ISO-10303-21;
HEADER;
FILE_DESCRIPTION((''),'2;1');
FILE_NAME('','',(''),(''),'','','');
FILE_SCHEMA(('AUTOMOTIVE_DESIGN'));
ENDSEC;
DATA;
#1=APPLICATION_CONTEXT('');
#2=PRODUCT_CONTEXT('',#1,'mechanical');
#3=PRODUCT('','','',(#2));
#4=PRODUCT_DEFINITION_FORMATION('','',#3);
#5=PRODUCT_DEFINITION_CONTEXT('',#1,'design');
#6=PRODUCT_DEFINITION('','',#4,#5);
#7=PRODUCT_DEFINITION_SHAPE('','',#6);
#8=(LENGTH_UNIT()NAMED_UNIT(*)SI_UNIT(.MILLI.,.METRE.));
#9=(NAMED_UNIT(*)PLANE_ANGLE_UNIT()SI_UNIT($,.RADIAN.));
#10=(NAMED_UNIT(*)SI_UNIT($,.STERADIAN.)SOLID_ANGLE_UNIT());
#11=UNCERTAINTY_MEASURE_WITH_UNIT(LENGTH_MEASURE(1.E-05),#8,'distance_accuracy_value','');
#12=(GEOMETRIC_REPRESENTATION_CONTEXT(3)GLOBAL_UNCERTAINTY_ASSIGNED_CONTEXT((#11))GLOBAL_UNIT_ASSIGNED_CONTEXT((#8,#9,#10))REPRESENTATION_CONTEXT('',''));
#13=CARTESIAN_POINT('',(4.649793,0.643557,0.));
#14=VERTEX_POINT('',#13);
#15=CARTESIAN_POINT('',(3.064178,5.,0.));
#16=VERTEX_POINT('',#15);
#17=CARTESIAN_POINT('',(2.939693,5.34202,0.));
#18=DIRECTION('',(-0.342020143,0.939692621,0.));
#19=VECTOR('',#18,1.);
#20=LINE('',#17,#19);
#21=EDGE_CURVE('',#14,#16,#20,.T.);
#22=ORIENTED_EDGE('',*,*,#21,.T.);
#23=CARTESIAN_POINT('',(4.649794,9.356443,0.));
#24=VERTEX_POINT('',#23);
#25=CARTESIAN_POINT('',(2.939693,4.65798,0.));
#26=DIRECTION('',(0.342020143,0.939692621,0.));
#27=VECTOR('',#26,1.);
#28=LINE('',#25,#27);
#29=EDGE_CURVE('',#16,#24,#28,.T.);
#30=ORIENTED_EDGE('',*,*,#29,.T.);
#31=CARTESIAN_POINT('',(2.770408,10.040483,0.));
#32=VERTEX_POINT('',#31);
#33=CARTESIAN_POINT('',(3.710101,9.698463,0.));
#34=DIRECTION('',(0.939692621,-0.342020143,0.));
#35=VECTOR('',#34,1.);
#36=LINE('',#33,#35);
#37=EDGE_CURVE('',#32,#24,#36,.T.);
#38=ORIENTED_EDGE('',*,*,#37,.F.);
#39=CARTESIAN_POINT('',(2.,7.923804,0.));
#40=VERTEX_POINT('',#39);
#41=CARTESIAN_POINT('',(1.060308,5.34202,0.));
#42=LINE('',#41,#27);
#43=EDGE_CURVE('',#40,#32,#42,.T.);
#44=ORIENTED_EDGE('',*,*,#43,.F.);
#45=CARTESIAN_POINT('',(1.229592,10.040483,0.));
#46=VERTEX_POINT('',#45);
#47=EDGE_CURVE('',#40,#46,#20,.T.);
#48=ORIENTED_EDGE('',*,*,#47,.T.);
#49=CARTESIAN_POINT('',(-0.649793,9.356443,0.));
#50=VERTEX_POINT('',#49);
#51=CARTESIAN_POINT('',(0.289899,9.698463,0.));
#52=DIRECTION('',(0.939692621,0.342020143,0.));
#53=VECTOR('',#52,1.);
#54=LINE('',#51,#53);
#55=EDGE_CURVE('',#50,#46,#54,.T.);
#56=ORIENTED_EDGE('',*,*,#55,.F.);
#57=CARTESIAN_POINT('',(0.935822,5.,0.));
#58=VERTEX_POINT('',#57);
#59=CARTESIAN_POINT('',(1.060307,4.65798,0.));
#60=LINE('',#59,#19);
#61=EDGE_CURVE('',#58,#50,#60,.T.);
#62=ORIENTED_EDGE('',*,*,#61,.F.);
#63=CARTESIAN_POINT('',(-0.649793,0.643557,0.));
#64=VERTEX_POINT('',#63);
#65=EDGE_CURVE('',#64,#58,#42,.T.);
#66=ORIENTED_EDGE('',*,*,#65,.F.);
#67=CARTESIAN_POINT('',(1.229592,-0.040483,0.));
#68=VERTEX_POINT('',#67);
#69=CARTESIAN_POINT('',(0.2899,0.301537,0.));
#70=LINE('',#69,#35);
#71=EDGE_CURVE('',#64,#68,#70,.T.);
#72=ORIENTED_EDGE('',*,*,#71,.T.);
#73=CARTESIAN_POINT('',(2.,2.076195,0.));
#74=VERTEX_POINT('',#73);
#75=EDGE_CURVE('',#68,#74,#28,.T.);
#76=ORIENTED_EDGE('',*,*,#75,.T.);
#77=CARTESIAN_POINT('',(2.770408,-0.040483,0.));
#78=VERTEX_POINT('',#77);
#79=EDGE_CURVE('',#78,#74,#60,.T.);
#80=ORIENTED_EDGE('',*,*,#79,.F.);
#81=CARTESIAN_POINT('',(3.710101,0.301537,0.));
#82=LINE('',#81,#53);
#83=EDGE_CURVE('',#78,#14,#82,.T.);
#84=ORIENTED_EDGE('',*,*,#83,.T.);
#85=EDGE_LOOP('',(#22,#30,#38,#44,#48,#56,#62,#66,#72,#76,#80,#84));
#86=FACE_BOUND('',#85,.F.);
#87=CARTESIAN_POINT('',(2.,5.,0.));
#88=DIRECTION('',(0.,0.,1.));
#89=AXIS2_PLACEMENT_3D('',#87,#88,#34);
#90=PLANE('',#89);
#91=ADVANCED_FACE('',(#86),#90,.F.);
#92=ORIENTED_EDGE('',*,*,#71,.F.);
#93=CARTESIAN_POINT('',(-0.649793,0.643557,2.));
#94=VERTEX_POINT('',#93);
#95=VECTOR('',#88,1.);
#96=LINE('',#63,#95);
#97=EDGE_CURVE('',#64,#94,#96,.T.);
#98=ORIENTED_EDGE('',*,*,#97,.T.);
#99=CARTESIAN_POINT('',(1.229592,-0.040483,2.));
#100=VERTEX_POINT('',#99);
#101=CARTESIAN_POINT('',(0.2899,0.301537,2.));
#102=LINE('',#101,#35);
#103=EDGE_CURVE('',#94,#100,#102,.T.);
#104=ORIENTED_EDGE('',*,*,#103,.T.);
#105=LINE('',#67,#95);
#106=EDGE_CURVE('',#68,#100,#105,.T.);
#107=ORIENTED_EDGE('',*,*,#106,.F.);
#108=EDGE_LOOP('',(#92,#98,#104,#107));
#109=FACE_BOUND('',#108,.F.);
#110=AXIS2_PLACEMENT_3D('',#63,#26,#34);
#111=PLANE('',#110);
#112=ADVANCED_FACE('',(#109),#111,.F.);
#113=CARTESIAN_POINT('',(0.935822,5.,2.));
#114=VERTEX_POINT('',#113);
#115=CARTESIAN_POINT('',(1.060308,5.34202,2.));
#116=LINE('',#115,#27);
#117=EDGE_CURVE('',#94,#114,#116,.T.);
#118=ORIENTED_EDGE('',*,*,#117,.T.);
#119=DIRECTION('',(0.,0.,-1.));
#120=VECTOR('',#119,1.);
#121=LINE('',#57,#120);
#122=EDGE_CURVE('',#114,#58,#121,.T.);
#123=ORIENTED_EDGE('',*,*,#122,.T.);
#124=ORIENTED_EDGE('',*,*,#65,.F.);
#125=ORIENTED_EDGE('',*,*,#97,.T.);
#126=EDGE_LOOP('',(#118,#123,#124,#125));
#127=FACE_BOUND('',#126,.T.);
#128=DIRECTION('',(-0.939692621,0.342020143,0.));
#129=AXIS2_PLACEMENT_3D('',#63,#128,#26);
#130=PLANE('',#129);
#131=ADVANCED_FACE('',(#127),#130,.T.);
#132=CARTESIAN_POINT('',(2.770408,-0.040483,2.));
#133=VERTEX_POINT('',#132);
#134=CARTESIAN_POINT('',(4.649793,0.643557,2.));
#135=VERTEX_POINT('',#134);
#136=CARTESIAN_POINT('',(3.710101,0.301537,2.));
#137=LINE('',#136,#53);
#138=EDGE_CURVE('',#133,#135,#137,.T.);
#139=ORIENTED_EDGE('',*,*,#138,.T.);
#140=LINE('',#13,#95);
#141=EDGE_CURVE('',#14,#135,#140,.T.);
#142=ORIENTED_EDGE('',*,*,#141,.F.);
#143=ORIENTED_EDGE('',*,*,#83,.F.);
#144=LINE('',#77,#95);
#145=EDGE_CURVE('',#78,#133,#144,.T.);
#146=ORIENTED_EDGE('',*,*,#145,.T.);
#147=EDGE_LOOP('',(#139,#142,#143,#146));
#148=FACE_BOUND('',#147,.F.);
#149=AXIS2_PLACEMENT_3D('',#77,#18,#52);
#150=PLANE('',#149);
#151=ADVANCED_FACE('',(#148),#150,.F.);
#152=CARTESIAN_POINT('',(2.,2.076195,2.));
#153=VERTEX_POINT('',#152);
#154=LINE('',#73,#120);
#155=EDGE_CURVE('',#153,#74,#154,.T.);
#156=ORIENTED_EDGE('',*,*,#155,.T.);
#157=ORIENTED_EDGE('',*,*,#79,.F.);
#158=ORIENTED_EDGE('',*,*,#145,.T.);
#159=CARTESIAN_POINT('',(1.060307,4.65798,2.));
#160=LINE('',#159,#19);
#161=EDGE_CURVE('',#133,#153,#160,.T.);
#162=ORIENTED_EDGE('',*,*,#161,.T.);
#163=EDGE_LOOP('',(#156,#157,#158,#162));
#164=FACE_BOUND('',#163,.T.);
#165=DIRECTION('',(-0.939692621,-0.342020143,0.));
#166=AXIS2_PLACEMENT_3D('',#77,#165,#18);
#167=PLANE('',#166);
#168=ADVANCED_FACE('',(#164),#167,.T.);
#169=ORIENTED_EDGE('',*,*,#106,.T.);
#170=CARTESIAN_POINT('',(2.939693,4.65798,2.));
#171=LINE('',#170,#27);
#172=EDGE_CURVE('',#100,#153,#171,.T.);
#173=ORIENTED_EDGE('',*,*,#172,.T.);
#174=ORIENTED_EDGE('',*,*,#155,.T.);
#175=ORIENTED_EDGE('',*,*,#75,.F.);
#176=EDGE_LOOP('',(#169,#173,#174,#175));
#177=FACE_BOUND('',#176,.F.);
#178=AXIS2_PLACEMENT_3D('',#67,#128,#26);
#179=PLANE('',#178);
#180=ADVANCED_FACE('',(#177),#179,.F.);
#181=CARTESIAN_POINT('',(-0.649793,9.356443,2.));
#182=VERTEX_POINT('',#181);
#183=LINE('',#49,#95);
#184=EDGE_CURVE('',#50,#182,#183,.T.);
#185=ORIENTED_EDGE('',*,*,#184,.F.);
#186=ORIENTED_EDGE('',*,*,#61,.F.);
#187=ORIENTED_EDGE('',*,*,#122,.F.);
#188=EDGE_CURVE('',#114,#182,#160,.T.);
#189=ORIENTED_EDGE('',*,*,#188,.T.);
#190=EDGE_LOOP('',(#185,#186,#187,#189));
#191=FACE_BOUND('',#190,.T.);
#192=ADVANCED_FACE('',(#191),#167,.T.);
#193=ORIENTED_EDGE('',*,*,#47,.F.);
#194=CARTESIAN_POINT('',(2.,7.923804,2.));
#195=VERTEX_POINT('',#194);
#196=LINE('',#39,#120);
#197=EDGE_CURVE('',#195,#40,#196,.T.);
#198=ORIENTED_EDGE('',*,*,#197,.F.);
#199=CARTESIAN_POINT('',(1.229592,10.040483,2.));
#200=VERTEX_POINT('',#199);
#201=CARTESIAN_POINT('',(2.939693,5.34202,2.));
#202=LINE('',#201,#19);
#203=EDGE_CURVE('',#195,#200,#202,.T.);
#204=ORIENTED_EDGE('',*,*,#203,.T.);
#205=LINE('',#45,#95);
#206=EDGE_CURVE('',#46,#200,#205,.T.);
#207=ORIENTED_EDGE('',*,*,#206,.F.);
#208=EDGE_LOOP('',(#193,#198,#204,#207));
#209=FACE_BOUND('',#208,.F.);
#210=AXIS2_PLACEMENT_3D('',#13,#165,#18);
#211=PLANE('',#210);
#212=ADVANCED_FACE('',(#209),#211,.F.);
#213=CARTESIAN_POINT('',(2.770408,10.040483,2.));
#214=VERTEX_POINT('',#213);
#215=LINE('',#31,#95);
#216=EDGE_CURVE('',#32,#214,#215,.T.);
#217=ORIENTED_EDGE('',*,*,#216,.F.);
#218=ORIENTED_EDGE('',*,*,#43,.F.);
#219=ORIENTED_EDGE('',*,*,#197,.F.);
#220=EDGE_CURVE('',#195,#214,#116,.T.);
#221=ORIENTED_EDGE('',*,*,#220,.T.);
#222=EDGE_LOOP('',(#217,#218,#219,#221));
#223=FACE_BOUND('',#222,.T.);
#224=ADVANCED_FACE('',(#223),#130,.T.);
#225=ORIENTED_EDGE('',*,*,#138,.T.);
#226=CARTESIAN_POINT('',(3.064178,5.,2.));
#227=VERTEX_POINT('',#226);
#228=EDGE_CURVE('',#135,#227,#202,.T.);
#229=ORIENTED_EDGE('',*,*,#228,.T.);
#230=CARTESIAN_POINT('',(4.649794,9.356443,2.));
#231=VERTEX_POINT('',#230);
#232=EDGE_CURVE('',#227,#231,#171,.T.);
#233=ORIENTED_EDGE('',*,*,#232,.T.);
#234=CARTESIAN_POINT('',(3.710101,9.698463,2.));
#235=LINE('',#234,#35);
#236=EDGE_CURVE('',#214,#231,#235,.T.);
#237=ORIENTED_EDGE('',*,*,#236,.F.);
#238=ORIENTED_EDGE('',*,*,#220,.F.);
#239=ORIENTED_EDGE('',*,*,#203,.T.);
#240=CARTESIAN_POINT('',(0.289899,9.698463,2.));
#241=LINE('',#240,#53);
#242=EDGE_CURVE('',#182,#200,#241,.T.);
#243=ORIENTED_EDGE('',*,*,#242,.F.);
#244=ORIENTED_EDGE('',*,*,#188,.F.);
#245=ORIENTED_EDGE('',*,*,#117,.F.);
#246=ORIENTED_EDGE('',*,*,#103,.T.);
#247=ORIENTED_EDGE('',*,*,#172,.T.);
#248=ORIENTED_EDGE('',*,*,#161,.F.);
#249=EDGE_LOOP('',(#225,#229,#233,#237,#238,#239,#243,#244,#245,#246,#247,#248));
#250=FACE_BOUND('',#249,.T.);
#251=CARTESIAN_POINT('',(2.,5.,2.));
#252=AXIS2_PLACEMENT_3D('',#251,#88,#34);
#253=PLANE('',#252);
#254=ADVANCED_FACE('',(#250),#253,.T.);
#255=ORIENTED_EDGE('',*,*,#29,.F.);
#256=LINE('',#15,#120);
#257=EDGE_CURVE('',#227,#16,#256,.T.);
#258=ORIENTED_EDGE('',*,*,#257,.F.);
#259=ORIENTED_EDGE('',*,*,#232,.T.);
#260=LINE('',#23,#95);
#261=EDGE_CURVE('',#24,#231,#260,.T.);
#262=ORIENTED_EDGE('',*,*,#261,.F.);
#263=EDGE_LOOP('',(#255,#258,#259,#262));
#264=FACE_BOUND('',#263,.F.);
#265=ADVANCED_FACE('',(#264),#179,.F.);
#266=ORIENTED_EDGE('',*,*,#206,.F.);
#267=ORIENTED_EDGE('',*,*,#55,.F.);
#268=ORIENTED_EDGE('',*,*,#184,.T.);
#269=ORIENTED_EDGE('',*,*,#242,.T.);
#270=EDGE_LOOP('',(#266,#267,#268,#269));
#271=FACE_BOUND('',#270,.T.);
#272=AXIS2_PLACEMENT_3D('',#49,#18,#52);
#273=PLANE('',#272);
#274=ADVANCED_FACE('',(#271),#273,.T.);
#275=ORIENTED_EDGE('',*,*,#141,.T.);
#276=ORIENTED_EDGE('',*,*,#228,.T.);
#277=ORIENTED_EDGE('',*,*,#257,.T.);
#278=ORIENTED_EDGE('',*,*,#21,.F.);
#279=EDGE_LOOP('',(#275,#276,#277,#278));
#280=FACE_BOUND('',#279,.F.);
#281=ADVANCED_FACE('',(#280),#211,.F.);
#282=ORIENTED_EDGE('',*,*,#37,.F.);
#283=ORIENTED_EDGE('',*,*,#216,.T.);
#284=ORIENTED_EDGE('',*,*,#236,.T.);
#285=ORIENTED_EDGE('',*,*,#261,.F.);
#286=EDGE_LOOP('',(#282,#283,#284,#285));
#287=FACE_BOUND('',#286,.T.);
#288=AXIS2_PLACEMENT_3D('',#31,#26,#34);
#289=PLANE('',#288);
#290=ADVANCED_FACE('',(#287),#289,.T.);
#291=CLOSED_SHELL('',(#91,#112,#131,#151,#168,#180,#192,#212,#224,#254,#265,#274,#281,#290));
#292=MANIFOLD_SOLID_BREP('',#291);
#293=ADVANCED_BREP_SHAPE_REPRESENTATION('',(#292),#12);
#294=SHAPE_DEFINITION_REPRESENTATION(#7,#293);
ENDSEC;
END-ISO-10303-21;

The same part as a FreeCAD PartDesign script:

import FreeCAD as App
import Part
import Sketcher
from FreeCAD import Vector


def add_polygon(sketch, points):
    """Adds a closed chain of lines whose ends are joined by coincident constraints."""
    first, n = sketch.GeometryCount, len(points)
    for a, b in zip(points, points[1:] + points[:1]):
        sketch.addGeometry(Part.LineSegment(App.Vector(*a, 0), App.Vector(*b, 0)), False)
    for i in range(n):
        sketch.addConstraint(Sketcher.Constraint("Coincident", first + i, 2, first + (i + 1) % n, 1))

doc = App.newDocument("Part")
body = doc.addObject("PartDesign::Body", "Body")

sketch1 = doc.addObject("Sketcher::SketchObject", "Sketch")
body.addObject(sketch1)
sketch1.AttachmentSupport = (doc.XY_Plane, [""])
sketch1.MapMode = "FlatFace"
add_polygon(sketch1, [(0, 10), (0, 0), (2, 0), (2, 10)])
sketch1.addConstraint([
    Sketcher.Constraint("Vertical", 0),
    Sketcher.Constraint("Horizontal", 1),
    Sketcher.Constraint("Vertical", 2),
    Sketcher.Constraint("Horizontal", 3),
    Sketcher.Constraint("Coincident", 0, 2, -1, 1),
    Sketcher.Constraint("DistanceX", 1, 1, 1, 2, 2.0),
    Sketcher.Constraint("DistanceY", 0, 2, 0, 1, 10.0),
])
pad1 = doc.addObject("PartDesign::Pad", "Pad")
body.addObject(pad1)
pad1.Profile = sketch1
pad1.Length = 2
body2 = doc.addObject("PartDesign::Body", "Body001")
doc.recompute()

body.Placement = App.Placement(Vector(-0.649793, 0.643557, 0), App.Rotation(Vector(0, 0, -1), 20))
boolean = doc.addObject("PartDesign::Boolean", "Boolean")
body2.addObject(boolean)
boolean.Type = "Fuse"
boolean.addObjects([body])
body3 = doc.addObject("PartDesign::Body", "Body002")

sketch2 = doc.addObject("Sketcher::SketchObject", "Sketch001")
body3.addObject(sketch2)
sketch2.AttachmentSupport = (doc.getObject("XY_Plane002"), [""])
sketch2.MapMode = "FlatFace"
add_polygon(sketch2, [(0, 10), (0, 0), (2, 0), (2, 10)])
sketch2.addConstraint([
    Sketcher.Constraint("Vertical", 0),
    Sketcher.Constraint("Horizontal", 1),
    Sketcher.Constraint("Vertical", 2),
    Sketcher.Constraint("Horizontal", 3),
    Sketcher.Constraint("Coincident", 0, 2, -1, 1),
    Sketcher.Constraint("DistanceX", 1, 1, 1, 2, 2.0),
    Sketcher.Constraint("DistanceY", 0, 2, 0, 1, 10.0),
])
pad2 = doc.addObject("PartDesign::Pad", "Pad001")
body3.addObject(pad2)
pad2.Profile = sketch2
pad2.Length = 2
body4 = doc.addObject("PartDesign::Body", "Body003")
doc.recompute()

body3.Placement = App.Placement(Vector(2.770408, -0.040483, 0), App.Rotation(Vector(0, 0, 1), 20))
boolean2 = doc.addObject("PartDesign::Boolean", "Boolean001")
body4.addObject(boolean2)
boolean2.Type = "Fuse"
boolean2.addObjects([body3])
doc.recompute()

boolean3 = doc.addObject("PartDesign::Boolean", "Boolean002")
body4.addObject(boolean3)
boolean3.Type = "Fuse"
boolean3.addObjects([body2])

doc.recompute()
